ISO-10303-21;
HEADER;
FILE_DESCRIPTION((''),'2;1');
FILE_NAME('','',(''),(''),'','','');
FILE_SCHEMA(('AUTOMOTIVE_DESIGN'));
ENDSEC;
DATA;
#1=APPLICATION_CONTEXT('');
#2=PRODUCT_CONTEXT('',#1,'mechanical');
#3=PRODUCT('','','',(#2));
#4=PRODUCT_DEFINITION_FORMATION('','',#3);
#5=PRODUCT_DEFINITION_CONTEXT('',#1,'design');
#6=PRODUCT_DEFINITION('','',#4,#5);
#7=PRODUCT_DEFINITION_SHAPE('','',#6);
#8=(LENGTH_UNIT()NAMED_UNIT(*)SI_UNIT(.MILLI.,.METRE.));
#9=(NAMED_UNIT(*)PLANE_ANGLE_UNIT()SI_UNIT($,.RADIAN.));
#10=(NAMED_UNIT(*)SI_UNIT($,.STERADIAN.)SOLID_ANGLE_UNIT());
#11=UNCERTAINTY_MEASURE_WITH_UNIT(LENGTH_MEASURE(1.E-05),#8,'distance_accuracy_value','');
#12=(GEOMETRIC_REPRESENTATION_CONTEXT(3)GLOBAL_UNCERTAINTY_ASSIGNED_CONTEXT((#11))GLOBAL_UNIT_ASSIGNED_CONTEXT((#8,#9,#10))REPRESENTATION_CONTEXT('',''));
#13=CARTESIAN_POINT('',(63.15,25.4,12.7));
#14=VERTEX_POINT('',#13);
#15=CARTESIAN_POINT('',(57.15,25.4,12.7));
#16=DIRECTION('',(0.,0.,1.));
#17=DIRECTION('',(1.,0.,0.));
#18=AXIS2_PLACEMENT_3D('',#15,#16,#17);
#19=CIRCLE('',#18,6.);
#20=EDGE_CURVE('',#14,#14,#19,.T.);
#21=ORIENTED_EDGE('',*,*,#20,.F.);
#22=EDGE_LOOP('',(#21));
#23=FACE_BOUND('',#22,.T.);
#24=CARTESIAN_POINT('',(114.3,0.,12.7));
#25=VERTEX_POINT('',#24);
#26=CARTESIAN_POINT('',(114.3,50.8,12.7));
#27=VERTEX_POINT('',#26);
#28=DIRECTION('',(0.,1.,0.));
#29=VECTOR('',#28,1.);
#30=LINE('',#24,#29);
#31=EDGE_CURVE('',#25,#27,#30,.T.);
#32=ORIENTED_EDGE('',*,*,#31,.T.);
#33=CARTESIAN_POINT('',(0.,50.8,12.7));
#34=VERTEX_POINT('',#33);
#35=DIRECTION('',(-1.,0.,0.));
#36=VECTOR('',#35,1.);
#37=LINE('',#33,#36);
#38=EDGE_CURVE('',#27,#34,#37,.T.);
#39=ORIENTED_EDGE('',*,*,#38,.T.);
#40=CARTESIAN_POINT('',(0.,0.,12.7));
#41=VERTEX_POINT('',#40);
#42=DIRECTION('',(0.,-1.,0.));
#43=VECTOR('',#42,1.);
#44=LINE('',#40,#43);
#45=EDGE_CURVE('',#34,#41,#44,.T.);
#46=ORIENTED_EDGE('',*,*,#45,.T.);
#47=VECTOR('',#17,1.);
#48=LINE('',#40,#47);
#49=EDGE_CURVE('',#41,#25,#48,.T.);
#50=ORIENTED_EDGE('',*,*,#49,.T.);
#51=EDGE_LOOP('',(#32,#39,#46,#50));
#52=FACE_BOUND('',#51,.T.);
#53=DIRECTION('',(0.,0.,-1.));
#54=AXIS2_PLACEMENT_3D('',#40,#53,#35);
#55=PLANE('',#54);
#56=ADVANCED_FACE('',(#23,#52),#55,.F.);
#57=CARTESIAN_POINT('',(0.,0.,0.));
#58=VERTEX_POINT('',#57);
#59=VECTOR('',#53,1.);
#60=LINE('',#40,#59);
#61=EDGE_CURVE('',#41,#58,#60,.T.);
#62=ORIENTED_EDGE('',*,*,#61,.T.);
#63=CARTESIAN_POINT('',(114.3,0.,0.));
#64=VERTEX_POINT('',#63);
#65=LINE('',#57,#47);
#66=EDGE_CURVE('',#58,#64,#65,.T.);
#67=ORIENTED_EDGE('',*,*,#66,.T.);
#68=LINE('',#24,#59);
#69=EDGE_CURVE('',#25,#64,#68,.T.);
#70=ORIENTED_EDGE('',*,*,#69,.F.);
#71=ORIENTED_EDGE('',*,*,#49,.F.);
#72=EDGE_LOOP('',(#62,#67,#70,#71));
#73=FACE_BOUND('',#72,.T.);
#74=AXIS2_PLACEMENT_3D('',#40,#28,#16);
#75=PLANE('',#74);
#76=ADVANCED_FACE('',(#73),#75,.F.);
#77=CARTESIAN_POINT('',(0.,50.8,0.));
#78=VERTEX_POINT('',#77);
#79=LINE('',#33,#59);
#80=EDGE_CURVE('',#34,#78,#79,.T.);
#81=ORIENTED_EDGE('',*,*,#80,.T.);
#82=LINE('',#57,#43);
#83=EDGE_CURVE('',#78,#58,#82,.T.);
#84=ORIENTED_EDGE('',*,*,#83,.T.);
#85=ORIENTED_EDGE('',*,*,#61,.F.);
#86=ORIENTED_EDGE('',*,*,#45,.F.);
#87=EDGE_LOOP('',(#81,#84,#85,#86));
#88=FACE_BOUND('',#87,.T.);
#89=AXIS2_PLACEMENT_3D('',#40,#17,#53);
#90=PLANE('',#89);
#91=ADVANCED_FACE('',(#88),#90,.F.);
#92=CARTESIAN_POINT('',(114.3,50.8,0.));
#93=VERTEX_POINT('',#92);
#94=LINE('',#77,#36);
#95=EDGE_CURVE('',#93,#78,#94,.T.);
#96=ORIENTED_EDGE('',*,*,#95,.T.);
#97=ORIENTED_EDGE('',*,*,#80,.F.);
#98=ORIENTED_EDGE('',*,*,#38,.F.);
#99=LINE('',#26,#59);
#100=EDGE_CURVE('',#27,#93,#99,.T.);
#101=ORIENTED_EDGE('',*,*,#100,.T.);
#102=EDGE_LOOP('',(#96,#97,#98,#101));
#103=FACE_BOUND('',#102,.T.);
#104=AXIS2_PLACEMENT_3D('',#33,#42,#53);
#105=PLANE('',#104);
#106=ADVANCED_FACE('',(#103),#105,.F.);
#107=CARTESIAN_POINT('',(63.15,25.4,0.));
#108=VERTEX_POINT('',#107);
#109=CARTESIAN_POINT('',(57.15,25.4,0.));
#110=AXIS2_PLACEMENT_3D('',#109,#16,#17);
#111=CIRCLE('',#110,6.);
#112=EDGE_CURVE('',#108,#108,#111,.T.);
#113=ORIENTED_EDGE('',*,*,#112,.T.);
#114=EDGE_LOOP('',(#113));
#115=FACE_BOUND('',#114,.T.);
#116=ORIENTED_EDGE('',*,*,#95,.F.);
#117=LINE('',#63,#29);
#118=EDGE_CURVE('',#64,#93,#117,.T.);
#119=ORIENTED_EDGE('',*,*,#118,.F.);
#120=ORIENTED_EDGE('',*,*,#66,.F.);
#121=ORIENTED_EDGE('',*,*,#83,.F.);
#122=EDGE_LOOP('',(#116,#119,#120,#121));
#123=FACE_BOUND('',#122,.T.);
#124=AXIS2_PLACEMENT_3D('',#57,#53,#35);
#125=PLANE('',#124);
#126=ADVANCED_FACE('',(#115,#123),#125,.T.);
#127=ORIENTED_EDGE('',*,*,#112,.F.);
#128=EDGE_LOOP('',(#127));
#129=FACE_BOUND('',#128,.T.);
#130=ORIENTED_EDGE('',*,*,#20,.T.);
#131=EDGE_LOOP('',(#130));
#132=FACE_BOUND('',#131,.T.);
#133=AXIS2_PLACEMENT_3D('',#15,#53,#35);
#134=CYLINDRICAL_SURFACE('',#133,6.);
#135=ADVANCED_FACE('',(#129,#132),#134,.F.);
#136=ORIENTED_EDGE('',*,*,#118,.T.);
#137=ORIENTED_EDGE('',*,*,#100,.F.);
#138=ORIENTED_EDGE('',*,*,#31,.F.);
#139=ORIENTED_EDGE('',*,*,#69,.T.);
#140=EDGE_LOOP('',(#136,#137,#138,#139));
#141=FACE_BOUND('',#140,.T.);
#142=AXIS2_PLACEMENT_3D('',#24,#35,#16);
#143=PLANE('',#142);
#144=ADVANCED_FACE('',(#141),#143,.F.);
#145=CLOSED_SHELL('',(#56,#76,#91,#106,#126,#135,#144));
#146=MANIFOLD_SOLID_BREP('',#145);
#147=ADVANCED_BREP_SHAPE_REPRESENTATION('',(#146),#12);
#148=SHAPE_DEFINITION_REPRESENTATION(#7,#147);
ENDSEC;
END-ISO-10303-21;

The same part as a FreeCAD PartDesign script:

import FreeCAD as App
import Part
import Sketcher

V = App.Vector
Q = App.Units.Quantity


def add_polygon(sketch, points):
    """Adds a closed chain of lines whose ends are joined by coincident constraints."""
    first, n = sketch.GeometryCount, len(points)
    for a, b in zip(points, points[1:] + points[:1]):
        sketch.addGeometry(Part.LineSegment(App.Vector(*a, 0), App.Vector(*b, 0)), False)
    for i in range(n):
        sketch.addConstraint(Sketcher.Constraint("Coincident", first + i, 2, first + (i + 1) % n, 1))

doc = App.newDocument("Part")
body = doc.addObject("PartDesign::Body", "Body")

# Sketch on XY plane
sketch1 = body.newObject("Sketcher::SketchObject", "Sketch")
sketch1.AttachmentSupport = (doc.getObject("XY_Plane"), [""])
sketch1.MapMode = "FlatFace"
add_polygon(sketch1, [(0, 51), (0, 0), (114, 0), (114, 51)])  # lines 0-3
sketch1.addGeometry(Part.Circle(V(57, 25, 0), V(0, 0, 1), 6), False)  # 4
sketch1.addConstraint(Sketcher.Constraint("Vertical", 0))
sketch1.addConstraint(Sketcher.Constraint("Horizontal", 1))
sketch1.addConstraint(Sketcher.Constraint("Vertical", 2))
sketch1.addConstraint(Sketcher.Constraint("Horizontal", 3))
sketch1.addConstraint(Sketcher.Constraint("Coincident", 0, 2, -1, 1))
sketch1.addConstraint(Sketcher.Constraint("DistanceY", 0, 2, 0, 1, Q("2 in")))
sketch1.addConstraint(Sketcher.Constraint("DistanceX", 1, 1, 1, 2, Q("4.5 in")))
sketch1.addConstraint(Sketcher.Constraint("DistanceY", -1, 1, 4, 3, Q("1 in")))
sketch1.addConstraint(Sketcher.Constraint("Diameter", 4, 12.0))
sketch1.addConstraint(Sketcher.Constraint("DistanceX", -1, 1, 4, 3, Q("2.25 in")))
pad1 = body.newObject("PartDesign::Pad", "Pad")
pad1.Profile = sketch1
pad1.Length = Q("0.5 in")

doc.recompute()
